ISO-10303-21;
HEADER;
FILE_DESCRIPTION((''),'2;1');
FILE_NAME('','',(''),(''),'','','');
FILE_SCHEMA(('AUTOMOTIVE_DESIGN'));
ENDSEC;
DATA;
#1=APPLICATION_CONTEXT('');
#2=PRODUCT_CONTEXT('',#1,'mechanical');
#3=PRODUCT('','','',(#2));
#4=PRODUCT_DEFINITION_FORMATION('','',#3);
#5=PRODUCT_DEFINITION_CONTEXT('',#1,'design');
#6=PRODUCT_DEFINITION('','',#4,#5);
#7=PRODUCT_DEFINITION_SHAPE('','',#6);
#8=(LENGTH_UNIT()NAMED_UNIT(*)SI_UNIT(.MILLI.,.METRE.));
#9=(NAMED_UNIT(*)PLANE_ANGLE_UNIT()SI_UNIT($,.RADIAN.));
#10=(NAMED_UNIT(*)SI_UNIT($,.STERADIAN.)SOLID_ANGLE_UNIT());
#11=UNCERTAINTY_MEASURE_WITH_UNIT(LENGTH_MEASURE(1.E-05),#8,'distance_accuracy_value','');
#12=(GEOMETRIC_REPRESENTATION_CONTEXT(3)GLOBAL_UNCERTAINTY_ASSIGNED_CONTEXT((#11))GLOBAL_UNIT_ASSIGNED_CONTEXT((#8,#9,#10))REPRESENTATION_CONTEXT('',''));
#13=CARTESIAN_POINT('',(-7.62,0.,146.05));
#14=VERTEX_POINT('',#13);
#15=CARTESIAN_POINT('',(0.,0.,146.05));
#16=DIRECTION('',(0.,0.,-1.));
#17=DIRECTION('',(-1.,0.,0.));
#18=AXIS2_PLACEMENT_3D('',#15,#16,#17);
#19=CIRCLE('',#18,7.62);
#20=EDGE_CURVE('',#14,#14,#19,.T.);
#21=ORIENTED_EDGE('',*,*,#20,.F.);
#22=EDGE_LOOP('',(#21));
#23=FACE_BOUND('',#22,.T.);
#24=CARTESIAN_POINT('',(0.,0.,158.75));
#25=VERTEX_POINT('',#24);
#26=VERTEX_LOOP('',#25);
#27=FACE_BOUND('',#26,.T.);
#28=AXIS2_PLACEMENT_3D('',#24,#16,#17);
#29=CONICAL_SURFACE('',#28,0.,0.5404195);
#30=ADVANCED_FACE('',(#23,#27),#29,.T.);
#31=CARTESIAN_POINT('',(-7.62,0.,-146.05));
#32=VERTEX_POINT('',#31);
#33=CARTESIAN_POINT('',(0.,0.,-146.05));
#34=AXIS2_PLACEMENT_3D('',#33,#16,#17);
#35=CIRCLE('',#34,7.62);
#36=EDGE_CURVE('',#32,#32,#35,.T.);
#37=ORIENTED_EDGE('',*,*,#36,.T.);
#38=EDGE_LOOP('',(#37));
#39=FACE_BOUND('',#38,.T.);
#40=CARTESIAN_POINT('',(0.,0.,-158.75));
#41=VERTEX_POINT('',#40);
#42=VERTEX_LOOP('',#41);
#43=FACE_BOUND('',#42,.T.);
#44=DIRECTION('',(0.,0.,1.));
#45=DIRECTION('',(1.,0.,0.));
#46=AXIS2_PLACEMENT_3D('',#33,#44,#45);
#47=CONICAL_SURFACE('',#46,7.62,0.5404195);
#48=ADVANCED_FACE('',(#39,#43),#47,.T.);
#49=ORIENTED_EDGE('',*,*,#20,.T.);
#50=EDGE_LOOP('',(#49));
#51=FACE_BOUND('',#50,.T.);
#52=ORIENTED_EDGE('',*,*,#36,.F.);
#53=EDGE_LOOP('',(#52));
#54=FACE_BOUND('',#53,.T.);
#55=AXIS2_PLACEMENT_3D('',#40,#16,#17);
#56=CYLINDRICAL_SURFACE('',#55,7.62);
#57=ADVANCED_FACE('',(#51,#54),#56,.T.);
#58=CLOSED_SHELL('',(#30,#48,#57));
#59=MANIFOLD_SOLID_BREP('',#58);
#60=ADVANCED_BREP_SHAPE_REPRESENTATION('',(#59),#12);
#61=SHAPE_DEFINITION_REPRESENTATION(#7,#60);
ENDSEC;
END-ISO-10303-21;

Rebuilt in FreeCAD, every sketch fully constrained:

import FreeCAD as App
import Part
import Sketcher
Q = App.Units.Quantity

doc = App.newDocument("Part")
body = doc.addObject("PartDesign::Body", "Body")

# Sketch on XZ plane
sketch1 = doc.addObject("Sketcher::SketchObject", "Sketch")
body.addObject(sketch1)
sketch1.AttachmentSupport = (doc.XZ_Plane, [""])
sketch1.MapMode = "FlatFace"
sketch1.addGeometry(Part.LineSegment(App.Vector(7.62, 146.05, 0), App.Vector(7.62, -146.05, 0)), False)
sketch1.addGeometry(Part.LineSegment(App.Vector(7.62, -146.05, 0), App.Vector(0, -158.75, 0)), False)
sketch1.addGeometry(Part.LineSegment(App.Vector(0, -158.75, 0), App.Vector(0, 158.75, 0)), False)
sketch1.addGeometry(Part.LineSegment(App.Vector(0, 158.75, 0), App.Vector(7.62, 146.05, 0)), False)
sketch1.addConstraint(Sketcher.Constraint("Coincident", 0, 2, 1, 1))
sketch1.addConstraint(Sketcher.Constraint("Coincident", 1, 2, 2, 1))
sketch1.addConstraint(Sketcher.Constraint("Coincident", 2, 2, 3, 1))
sketch1.addConstraint(Sketcher.Constraint("Coincident", 3, 2, 0, 1))
sketch1.addConstraint(Sketcher.Constraint("Vertical", 0))
sketch1.addConstraint(Sketcher.Constraint("Vertical", 2))
sketch1.addConstraint(Sketcher.Constraint("Symmetric", 1, 2, 2, 2, -1, 1))
sketch1.addConstraint(Sketcher.Constraint("Equal", 1, 3))
sketch1.addConstraint(Sketcher.Constraint("DistanceY", 0, 2, 0, 1, Q("11.5 in")))
sketch1.addConstraint(Sketcher.Constraint("DistanceY", 2, 1, 2, 2, Q("12.5 in")))
sketch1.addConstraint(Sketcher.Constraint("DistanceX", -1, 1, 0, 2, Q("0.3 in")))
revolution = doc.addObject("PartDesign::Revolution", "Revolution")
body.addObject(revolution)
revolution.Profile = sketch1
revolution.ReferenceAxis = (sketch1, ["V_Axis"])
revolution.Angle = 360

doc.recompute()
